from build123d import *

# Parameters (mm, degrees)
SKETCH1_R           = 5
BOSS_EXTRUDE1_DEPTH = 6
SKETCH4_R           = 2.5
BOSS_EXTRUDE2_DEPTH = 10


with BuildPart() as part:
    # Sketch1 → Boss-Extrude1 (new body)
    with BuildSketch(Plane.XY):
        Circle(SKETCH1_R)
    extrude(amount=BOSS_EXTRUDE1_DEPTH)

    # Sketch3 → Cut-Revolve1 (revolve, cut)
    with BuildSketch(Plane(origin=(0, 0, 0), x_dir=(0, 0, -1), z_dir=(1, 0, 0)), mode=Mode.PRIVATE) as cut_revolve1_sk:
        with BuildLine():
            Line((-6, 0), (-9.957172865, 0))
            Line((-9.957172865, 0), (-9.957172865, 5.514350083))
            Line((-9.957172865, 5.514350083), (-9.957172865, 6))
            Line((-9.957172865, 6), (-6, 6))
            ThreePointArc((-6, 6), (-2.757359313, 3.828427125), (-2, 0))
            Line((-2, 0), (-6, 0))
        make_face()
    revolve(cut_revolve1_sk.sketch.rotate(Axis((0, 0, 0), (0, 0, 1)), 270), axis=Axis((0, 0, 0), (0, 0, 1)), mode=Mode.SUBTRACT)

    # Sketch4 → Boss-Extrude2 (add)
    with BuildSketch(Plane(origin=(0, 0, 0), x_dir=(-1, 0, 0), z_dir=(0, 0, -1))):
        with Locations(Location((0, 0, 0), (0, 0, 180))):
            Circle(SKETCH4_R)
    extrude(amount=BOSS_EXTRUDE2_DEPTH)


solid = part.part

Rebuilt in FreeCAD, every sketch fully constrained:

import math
import FreeCAD as App
import Part
import Sketcher
from FreeCAD import Vector
Q = App.Units.Quantity

doc = App.newDocument("Part")
params = doc.addObject("Spreadsheet::Sheet", "Params")
for row, (alias, value) in enumerate([
    ("sketch1_diameter", "10 mm"),
    ("pad1_length", "6 mm"),
    ("sketch2_width", "6 mm"),
    ("groove_angle", "360 deg"),
    ("sketch3_diameter", "5 mm"),
    ("pad2_length", "10 mm"),
], start=1):
    params.set(f"A{row}", alias)
    params.set(f"B{row}", "=" + value)
    params.setAlias(f"B{row}", alias)

body = doc.addObject("PartDesign::Body", "Body")

# Sketch on XY plane
sketch1 = body.newObject("Sketcher::SketchObject", "Sketch")
sketch1.AttachmentSupport = (doc.getObject("XY_Plane"), [""])
sketch1.MapMode = "FlatFace"
sketch1.addGeometry(Part.Circle(Vector(0, 0, 0), Vector(0, 0, 1), 5), False)
sketch1.addConstraint([
    Sketcher.Constraint("Coincident", 0, 3, -1, 1),
    Sketcher.Constraint("Diameter", 0, Q("10 mm")),
])
sketch1.setExpression("Constraints[1]", "Params.sketch1_diameter")
pad1 = body.newObject("PartDesign::Pad", "Pad")
pad1.Profile = sketch1
pad1.setExpression("Length", "Params.pad1_length")

# Sketch on YZ plane
sketch2 = body.newObject("Sketcher::SketchObject", "Sketch001")
sketch2.AttachmentSupport = (doc.getObject("YZ_Plane"), [""])
sketch2.MapMode = "FlatFace"
sketch2.addGeometry([
    Part.LineSegment(Vector(6, 10, 0), Vector(0, 10, 0)),
    Part.LineSegment(Vector(0, 10, 0), Vector(0, 2, 0)),
    Part.ArcOfCircle(Part.Circle(Vector(1, 7, 0), Vector(0, 0, 1), 5.1), math.radians(-101), math.radians(-11)),
    Part.LineSegment(Vector(6, 6, 0), Vector(6, 10, 0)),
], False)
sketch2.addConstraint([
    Sketcher.Constraint("Coincident", 0, 2, 1, 1),
    Sketcher.Constraint("Coincident", 1, 2, 2, 1),
    Sketcher.Constraint("Coincident", 2, 2, 3, 1),
    Sketcher.Constraint("Coincident", 3, 2, 0, 1),
    Sketcher.Constraint("Horizontal", 0),
    Sketcher.Constraint("Vertical", 1),
    Sketcher.Constraint("Vertical", 3),
    Sketcher.Constraint("PointOnObject", 0, 2, -2),
    Sketcher.Constraint("DistanceX", 0, 2, 0, 1, Q("6 mm")),
    Sketcher.Constraint("DistanceX", -1, 1, 2, 3, Q("1 mm")),
    Sketcher.Constraint("DistanceY", -1, 1, 2, 3, Q("7 mm")),
    Sketcher.Constraint("DistanceY", -1, 1, 1, 2, Q("2 mm")),
    Sketcher.Constraint("DistanceY", 1, 2, 1, 1, Q("7.957173 mm")),
])
sketch2.setExpression("Constraints[8]", "Params.sketch2_width")
groove = body.newObject("PartDesign::Groove", "Groove")
groove.Profile = sketch2
groove.ReferenceAxis = (sketch2, ["V_Axis"])
groove.setExpression("Angle", "Params.groove_angle")

# Sketch on XY plane
sketch3 = body.newObject("Sketcher::SketchObject", "Sketch002")
sketch3.AttachmentSupport = (doc.getObject("XY_Plane"), [""])
sketch3.MapMode = "FlatFace"
sketch3.addGeometry(Part.Circle(Vector(0, 0, 0), Vector(0, 0, 1), 2.5), False)
sketch3.addConstraint([
    Sketcher.Constraint("Coincident", 0, 3, -1, 1),
    Sketcher.Constraint("Diameter", 0, Q("5 mm")),
])
sketch3.setExpression("Constraints[1]", "Params.sketch3_diameter")
pad2 = body.newObject("PartDesign::Pad", "Pad001")
pad2.Profile = sketch3
pad2.setExpression("Length", "Params.pad2_length")
pad2.Reversed = True

doc.recompute()
